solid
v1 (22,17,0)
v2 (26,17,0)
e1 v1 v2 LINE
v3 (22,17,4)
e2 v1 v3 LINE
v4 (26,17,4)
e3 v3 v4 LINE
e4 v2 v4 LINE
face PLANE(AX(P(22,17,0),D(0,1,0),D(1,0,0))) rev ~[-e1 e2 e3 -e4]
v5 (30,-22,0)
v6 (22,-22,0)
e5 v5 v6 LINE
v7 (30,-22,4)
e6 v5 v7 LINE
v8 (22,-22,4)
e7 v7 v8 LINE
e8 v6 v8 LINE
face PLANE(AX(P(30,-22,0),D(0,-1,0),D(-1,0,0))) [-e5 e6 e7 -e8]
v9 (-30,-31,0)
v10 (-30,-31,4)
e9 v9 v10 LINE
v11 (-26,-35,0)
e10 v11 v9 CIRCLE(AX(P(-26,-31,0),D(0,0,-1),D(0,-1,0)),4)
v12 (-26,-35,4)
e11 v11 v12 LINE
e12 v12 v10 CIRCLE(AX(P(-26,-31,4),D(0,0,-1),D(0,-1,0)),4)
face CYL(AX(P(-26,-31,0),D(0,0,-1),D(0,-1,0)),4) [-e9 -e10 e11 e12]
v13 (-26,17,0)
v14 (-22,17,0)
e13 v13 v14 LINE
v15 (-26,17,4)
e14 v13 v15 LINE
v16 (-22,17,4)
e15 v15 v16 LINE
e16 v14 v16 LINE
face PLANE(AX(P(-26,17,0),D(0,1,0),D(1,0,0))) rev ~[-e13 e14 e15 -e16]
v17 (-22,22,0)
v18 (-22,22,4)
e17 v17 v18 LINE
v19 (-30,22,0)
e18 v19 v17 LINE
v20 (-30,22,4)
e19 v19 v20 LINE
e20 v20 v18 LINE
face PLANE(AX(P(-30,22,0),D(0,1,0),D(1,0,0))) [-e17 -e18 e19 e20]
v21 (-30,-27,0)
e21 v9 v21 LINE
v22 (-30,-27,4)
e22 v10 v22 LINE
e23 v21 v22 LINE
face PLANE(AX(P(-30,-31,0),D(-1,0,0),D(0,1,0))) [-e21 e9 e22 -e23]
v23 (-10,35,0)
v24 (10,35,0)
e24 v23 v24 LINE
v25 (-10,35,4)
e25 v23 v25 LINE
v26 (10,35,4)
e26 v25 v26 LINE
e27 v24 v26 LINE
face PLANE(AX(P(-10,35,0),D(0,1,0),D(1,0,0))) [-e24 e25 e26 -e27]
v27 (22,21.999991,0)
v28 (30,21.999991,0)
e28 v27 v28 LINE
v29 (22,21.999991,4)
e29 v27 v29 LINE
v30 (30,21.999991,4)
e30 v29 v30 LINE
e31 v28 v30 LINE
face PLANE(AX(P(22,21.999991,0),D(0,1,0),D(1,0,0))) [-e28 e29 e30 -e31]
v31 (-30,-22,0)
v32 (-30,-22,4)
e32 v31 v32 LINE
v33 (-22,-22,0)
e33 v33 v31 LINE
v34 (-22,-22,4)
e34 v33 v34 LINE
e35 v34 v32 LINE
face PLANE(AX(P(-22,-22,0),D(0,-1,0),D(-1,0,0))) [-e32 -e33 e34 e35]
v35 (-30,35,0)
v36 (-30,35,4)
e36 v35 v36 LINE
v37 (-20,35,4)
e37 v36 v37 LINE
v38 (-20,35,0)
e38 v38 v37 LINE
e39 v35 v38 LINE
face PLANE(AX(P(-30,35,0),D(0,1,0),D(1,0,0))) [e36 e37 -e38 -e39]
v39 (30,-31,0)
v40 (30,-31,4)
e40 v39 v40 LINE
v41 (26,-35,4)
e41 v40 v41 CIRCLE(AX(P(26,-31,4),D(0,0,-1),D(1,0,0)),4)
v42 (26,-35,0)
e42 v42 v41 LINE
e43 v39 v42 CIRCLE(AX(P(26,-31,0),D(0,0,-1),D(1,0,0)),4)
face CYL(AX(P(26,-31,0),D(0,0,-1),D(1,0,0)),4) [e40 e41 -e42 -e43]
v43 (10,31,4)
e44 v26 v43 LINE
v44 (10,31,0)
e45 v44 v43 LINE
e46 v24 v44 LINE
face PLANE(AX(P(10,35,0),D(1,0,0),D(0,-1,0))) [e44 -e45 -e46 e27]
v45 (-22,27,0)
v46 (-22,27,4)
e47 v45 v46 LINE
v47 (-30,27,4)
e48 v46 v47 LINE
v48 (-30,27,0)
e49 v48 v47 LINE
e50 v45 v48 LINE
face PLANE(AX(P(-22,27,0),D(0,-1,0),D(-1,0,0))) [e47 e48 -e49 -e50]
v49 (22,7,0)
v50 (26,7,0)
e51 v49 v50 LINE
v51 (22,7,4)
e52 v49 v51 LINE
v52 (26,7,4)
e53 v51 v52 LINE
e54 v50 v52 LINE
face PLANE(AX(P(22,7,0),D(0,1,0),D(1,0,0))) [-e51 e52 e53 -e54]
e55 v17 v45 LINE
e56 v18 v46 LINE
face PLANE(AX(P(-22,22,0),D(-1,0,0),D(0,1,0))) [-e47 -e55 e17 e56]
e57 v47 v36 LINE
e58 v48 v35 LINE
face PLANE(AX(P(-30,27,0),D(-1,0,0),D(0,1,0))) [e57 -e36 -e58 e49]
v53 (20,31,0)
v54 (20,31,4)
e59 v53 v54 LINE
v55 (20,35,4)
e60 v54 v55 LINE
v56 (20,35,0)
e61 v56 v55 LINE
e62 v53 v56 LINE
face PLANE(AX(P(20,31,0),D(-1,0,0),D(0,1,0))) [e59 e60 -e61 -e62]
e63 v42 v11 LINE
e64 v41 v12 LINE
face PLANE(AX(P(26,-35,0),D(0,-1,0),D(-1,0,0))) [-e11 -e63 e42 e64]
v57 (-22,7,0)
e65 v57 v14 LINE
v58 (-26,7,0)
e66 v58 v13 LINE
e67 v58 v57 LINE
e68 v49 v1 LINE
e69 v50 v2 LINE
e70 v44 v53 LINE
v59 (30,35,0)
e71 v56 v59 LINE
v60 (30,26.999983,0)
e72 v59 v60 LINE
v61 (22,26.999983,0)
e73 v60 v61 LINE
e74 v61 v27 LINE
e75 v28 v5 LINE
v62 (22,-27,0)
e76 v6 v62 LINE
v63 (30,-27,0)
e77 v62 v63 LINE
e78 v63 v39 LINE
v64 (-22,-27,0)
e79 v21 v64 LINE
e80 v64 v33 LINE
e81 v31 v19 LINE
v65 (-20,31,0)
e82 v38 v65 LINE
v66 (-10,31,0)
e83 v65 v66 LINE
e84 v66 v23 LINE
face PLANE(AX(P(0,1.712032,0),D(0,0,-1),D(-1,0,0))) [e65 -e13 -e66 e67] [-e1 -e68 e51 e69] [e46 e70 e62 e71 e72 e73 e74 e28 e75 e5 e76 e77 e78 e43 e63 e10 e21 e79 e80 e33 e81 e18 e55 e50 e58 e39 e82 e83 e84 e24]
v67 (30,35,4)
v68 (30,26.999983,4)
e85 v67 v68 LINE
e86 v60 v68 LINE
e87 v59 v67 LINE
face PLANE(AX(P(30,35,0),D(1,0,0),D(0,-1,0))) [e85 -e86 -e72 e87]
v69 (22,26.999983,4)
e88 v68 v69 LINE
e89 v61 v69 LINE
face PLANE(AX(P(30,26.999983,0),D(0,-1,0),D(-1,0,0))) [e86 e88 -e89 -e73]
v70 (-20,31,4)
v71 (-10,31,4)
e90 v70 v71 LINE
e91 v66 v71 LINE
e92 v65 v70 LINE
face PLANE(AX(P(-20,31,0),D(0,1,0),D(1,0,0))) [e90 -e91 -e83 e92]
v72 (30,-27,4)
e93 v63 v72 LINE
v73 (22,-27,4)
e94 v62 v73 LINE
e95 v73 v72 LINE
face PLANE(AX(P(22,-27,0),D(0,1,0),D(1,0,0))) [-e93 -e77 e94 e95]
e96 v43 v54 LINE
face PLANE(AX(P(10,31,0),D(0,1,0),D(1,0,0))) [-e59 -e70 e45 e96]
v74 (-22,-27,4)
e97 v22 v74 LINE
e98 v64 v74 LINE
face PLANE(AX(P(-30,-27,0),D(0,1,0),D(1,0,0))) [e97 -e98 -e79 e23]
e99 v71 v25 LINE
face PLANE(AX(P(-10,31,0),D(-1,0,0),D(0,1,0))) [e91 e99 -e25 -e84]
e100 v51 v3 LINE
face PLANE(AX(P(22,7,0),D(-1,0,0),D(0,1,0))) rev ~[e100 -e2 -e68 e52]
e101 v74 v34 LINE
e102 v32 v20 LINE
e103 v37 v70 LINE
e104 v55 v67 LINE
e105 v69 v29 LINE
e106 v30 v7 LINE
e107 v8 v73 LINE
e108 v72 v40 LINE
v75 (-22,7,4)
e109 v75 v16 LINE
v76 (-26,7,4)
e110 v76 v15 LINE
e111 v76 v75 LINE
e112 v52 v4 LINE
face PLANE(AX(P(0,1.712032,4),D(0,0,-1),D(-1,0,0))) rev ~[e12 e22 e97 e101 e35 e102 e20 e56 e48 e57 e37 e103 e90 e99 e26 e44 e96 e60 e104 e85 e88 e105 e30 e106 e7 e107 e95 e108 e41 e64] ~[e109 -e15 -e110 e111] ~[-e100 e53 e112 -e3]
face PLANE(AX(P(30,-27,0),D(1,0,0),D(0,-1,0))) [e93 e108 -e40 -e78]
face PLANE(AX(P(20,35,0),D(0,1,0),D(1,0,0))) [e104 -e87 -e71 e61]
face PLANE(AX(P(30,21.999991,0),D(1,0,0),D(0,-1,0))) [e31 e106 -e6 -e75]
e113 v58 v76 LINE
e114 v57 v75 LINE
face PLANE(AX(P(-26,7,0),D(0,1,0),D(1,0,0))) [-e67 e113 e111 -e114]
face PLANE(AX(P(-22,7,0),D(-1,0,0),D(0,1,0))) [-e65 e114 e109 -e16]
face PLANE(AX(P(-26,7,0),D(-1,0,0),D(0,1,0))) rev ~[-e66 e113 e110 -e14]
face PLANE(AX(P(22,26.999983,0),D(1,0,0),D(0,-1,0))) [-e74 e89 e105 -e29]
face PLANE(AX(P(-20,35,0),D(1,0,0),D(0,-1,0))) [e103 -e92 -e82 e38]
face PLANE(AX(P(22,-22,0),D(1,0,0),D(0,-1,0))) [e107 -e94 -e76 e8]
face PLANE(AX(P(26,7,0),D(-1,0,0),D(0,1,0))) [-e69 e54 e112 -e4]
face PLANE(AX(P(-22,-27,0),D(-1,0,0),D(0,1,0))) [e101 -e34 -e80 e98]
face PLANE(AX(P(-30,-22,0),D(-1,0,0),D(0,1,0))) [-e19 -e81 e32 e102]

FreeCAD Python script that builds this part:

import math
import FreeCAD as App
import Part
import Sketcher

V = App.Vector


def add_polygon(sketch, points):
    """Adds a closed chain of lines whose ends are joined by coincident constraints."""
    first, n = sketch.GeometryCount, len(points)
    for a, b in zip(points, points[1:] + points[:1]):
        sketch.addGeometry(Part.LineSegment(App.Vector(*a, 0), App.Vector(*b, 0)), False)
    for i in range(n):
        sketch.addConstraint(Sketcher.Constraint("Coincident", first + i, 2, first + (i + 1) % n, 1))

doc = App.newDocument("Part")
body = doc.addObject("PartDesign::Body", "Body")

# Sketch on XY plane
sketch1 = doc.addObject("Sketcher::SketchObject", "Sketch")
body.addObject(sketch1)
sketch1.AttachmentSupport = (doc.XY_Plane, [""])
sketch1.MapMode = "FlatFace"
sketch1.addGeometry(Part.LineSegment(V(-22, -27, 0), V(-30, -27, 0)), False)  # 0
sketch1.addGeometry(Part.LineSegment(V(-30, -27, 0), V(-30, -31, 0)), False)  # 1
sketch1.addGeometry(Part.ArcOfCircle(Part.Circle(V(-26, -31, 0), V(0, 0, 1), 4), math.radians(180), math.radians(270)), False)  # 2
sketch1.addGeometry(Part.LineSegment(V(-26, -35, 0), V(26, -35, 0)), False)  # 3
sketch1.addGeometry(Part.ArcOfCircle(Part.Circle(V(26, -31, 0), V(0, 0, 1), 4), math.radians(-90), math.radians(0)), False)  # 4
sketch1.addGeometry(Part.LineSegment(V(30, -31, 0), V(30, -27, 0)), False)  # 5
sketch1.addGeometry(Part.LineSegment(V(30, -27, 0), V(22, -27, 0)), False)  # 6
sketch1.addGeometry(Part.LineSegment(V(22, -27, 0), V(22, -22, 0)), False)  # 7
sketch1.addGeometry(Part.LineSegment(V(22, -22, 0), V(30, -22, 0)), False)  # 8
sketch1.addGeometry(Part.LineSegment(V(30, -22, 0), V(30, 22, 0)), False)  # 9
sketch1.addGeometry(Part.LineSegment(V(30, 22, 0), V(22, 22, 0)), False)  # 10
sketch1.addGeometry(Part.LineSegment(V(22, 22, 0), V(22, 27, 0)), False)  # 11
sketch1.addGeometry(Part.LineSegment(V(22, 27, 0), V(30, 27, 0)), False)  # 12
sketch1.addGeometry(Part.LineSegment(V(30, 27, 0), V(30, 35, 0)), False)  # 13
sketch1.addGeometry(Part.LineSegment(V(30, 35, 0), V(20, 35, 0)), False)  # 14
sketch1.addGeometry(Part.LineSegment(V(20, 35, 0), V(20, 31, 0)), False)  # 15
sketch1.addGeometry(Part.LineSegment(V(20, 31, 0), V(10, 31, 0)), False)  # 16
sketch1.addGeometry(Part.LineSegment(V(10, 31, 0), V(10, 35, 0)), False)  # 17
sketch1.addGeometry(Part.LineSegment(V(10, 35, 0), V(-10, 35, 0)), False)  # 18
sketch1.addGeometry(Part.LineSegment(V(-10, 35, 0), V(-10, 31, 0)), False)  # 19
sketch1.addGeometry(Part.LineSegment(V(-10, 31, 0), V(-20, 31, 0)), False)  # 20
sketch1.addGeometry(Part.LineSegment(V(-20, 31, 0), V(-20, 35, 0)), False)  # 21
sketch1.addGeometry(Part.LineSegment(V(-20, 35, 0), V(-30, 35, 0)), False)  # 22
sketch1.addGeometry(Part.LineSegment(V(-30, 35, 0), V(-30, 27, 0)), False)  # 23
sketch1.addGeometry(Part.LineSegment(V(-30, 27, 0), V(-22, 27, 0)), False)  # 24
sketch1.addGeometry(Part.LineSegment(V(-22, 27, 0), V(-22, 22, 0)), False)  # 25
sketch1.addGeometry(Part.LineSegment(V(-22, 22, 0), V(-30, 22, 0)), False)  # 26
sketch1.addGeometry(Part.LineSegment(V(-30, 22, 0), V(-30, -22, 0)), False)  # 27
sketch1.addGeometry(Part.LineSegment(V(-30, -22, 0), V(-22, -22, 0)), False)  # 28
sketch1.addGeometry(Part.LineSegment(V(-22, -22, 0), V(-22, -27, 0)), False)  # 29
add_polygon(sketch1, [(22, 7), (22, 17), (26, 17), (26, 7)])  # lines 30-33
add_polygon(sketch1, [(-26, 7), (-26, 17), (-22, 17), (-22, 7)])  # lines 34-37
sketch1.addConstraint([
    Sketcher.Constraint("Coincident", 0, 2, 1, 1),
    Sketcher.Constraint("Tangent", 1, 2, 2, 1),
    Sketcher.Constraint("Tangent", 2, 2, 3, 1),
    Sketcher.Constraint("Tangent", 3, 2, 4, 1),
    Sketcher.Constraint("Tangent", 4, 2, 5, 1),
    Sketcher.Constraint("Coincident", 5, 2, 6, 1),
    Sketcher.Constraint("Coincident", 6, 2, 7, 1),
    Sketcher.Constraint("Coincident", 7, 2, 8, 1),
    Sketcher.Constraint("Coincident", 8, 2, 9, 1),
    Sketcher.Constraint("Coincident", 9, 2, 10, 1),
    Sketcher.Constraint("Coincident", 10, 2, 11, 1),
    Sketcher.Constraint("Coincident", 11, 2, 12, 1),
    Sketcher.Constraint("Coincident", 12, 2, 13, 1),
    Sketcher.Constraint("Coincident", 13, 2, 14, 1),
    Sketcher.Constraint("Coincident", 14, 2, 15, 1),
    Sketcher.Constraint("Coincident", 15, 2, 16, 1),
    Sketcher.Constraint("Coincident", 16, 2, 17, 1),
    Sketcher.Constraint("Coincident", 17, 2, 18, 1),
    Sketcher.Constraint("Coincident", 18, 2, 19, 1),
    Sketcher.Constraint("Coincident", 19, 2, 20, 1),
    Sketcher.Constraint("Coincident", 20, 2, 21, 1),
    Sketcher.Constraint("Coincident", 21, 2, 22, 1),
    Sketcher.Constraint("Coincident", 22, 2, 23, 1),
    Sketcher.Constraint("Coincident", 23, 2, 24, 1),
    Sketcher.Constraint("Coincident", 24, 2, 25, 1),
    Sketcher.Constraint("Coincident", 25, 2, 26, 1),
    Sketcher.Constraint("Coincident", 26, 2, 27, 1),
    Sketcher.Constraint("Coincident", 27, 2, 28, 1),
    Sketcher.Constraint("Coincident", 28, 2, 29, 1),
    Sketcher.Constraint("Coincident", 29, 2, 0, 1),
    Sketcher.Constraint("Horizontal", 0),
    Sketcher.Constraint("Vertical", 1),
    Sketcher.Constraint("Horizontal", 3),
    Sketcher.Constraint("Vertical", 5),
    Sketcher.Constraint("Horizontal", 6),
    Sketcher.Constraint("Vertical", 7),
    Sketcher.Constraint("Horizontal", 8),
    Sketcher.Constraint("Vertical", 9),
    Sketcher.Constraint("Horizontal", 10),
    Sketcher.Constraint("Vertical", 11),
    Sketcher.Constraint("Horizontal", 12),
    Sketcher.Constraint("Vertical", 13),
    Sketcher.Constraint("Horizontal", 14),
    Sketcher.Constraint("Vertical", 15),
    Sketcher.Constraint("Horizontal", 16),
    Sketcher.Constraint("Vertical", 17),
    Sketcher.Constraint("Horizontal", 18),
    Sketcher.Constraint("Vertical", 19),
    Sketcher.Constraint("Horizontal", 20),
    Sketcher.Constraint("Vertical", 21),
    Sketcher.Constraint("Horizontal", 22),
    Sketcher.Constraint("Vertical", 23),
    Sketcher.Constraint("Horizontal", 24),
    Sketcher.Constraint("Vertical", 25),
    Sketcher.Constraint("Horizontal", 26),
    Sketcher.Constraint("Vertical", 27),
    Sketcher.Constraint("Horizontal", 28),
    Sketcher.Constraint("Vertical", 29),
    Sketcher.Constraint("Vertical", 30),
    Sketcher.Constraint("Horizontal", 31),
    Sketcher.Constraint("Vertical", 32),
    Sketcher.Constraint("Horizontal", 33),
    Sketcher.Constraint("Vertical", 34),
    Sketcher.Constraint("Horizontal", 35),
    Sketcher.Constraint("Vertical", 36),
    Sketcher.Constraint("Horizontal", 37),
    Sketcher.Constraint("Equal", 2, 4),
    Sketcher.Constraint("Symmetric", 5, 2, 23, 2, -1, 1),
    Sketcher.Constraint("Symmetric", 7, 2, 25, 2, -1, 1),
    Sketcher.Constraint("Symmetric", 9, 2, 27, 2, -1, 1),
    Sketcher.Constraint("Symmetric", 0, 2, 5, 2, -2),
    Sketcher.Constraint("Symmetric", 16, 2, 19, 2, -2),
    Sketcher.Constraint("Symmetric", 14, 2, 21, 2, -2),
    Sketcher.Constraint("Symmetric", 10, 2, 25, 2, -2),
    Sketcher.Constraint("Symmetric", 31, 2, 34, 2, -2),
    Sketcher.Constraint("Symmetric", 33, 2, 36, 2, -2),
    Sketcher.Constraint("Horizontal", 14, 2, 17, 2),
    Sketcher.Constraint("Vertical", 5, 2, 8, 2),
    Sketcher.Constraint("Vertical", 9, 2, 12, 2),
    Sketcher.Constraint("Vertical", 25, 2, 28, 2),
    Sketcher.Constraint("Vertical", 11, 2, 30, 2),
    Sketcher.Constraint("Vertical", 3, 2, 31, 2),
    Sketcher.Constraint("Equal", 14, 16),
    Sketcher.Constraint("Equal", 37, 1),
    Sketcher.Constraint("Equal", 5, 15),
    Sketcher.Constraint("Equal", 28, 23),
    Sketcher.Constraint("Equal", 22, 30),
    Sketcher.Constraint("Radius", 2, 4.0),
    Sketcher.Constraint("DistanceX", 0, 2, 0, 1, 8.0),
    Sketcher.Constraint("DistanceX", 3, 1, 3, 2, 52.0),
    Sketcher.Constraint("DistanceX", 14, 2, 14, 1, 10.0),
    Sketcher.Constraint("DistanceY", 7, 1, 7, 2, 5.0),
    Sketcher.Constraint("DistanceY", 27, 2, 27, 1, 44.0),
    Sketcher.Constraint("DistanceY", -1, 1, 30, 2, 17.0),
    Sketcher.Constraint("DistanceY", 11, 1, 11, 2, 4.999993),
])
pad1 = doc.addObject("PartDesign::Pad", "Pad")
body.addObject(pad1)
pad1.Profile = sketch1
pad1.Length = 4

doc.recompute()
